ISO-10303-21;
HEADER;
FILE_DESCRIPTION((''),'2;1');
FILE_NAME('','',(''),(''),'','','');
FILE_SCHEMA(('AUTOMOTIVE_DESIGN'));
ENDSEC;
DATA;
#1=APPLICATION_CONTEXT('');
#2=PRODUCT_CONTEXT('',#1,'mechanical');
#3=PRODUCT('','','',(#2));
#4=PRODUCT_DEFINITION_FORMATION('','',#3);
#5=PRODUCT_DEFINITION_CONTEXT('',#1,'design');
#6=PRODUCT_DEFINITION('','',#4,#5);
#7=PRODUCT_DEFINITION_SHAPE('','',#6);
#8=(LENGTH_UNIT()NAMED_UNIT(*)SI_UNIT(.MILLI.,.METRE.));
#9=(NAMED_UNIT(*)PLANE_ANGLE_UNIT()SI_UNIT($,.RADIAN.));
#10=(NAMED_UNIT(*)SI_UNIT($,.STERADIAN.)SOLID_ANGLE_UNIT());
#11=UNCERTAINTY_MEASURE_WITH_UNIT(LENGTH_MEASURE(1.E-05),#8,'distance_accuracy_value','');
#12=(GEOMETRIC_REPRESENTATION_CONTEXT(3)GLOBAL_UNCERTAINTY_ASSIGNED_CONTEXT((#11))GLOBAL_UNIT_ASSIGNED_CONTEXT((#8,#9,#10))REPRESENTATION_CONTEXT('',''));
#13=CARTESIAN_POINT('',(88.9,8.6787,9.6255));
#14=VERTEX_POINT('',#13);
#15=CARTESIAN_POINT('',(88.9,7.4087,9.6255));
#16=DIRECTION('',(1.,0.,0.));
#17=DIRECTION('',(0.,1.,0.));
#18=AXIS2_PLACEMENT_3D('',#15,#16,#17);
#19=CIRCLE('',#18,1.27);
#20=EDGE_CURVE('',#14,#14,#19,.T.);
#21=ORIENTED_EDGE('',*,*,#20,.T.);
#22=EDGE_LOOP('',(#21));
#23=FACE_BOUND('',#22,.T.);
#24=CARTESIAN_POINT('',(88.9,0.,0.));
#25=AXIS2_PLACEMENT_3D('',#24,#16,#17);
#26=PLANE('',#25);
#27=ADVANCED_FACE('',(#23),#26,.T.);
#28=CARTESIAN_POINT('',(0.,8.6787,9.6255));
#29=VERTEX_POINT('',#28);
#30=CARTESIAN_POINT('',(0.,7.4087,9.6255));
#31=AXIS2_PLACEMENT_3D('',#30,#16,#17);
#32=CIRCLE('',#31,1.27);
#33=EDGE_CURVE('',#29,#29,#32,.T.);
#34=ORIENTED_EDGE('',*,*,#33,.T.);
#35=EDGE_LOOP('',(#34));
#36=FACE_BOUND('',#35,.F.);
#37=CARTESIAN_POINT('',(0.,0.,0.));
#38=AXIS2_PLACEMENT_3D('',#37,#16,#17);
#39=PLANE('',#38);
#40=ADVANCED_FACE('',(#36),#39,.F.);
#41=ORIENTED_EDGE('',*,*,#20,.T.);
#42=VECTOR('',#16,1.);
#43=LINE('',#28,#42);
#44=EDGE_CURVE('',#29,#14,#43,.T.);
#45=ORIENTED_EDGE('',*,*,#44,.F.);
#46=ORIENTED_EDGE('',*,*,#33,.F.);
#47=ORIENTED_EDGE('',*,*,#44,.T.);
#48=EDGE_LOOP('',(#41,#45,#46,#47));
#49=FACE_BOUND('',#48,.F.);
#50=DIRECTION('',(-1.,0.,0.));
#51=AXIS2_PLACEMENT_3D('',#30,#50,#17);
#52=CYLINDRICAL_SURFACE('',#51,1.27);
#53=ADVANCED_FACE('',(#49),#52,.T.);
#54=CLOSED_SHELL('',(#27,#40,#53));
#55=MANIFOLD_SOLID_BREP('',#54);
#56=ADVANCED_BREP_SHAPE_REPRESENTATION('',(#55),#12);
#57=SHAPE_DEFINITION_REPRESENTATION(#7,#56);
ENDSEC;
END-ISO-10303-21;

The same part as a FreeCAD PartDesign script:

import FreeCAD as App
import Part
import Sketcher
from FreeCAD import Vector
Q = App.Units.Quantity

doc = App.newDocument("Part")
body = doc.addObject("PartDesign::Body", "Body")

sketch1 = body.newObject("Sketcher::SketchObject", "Sketch")
sketch1.AttachmentSupport = (doc.getObject("YZ_Plane"), [""])
sketch1.MapMode = "FlatFace"
sketch1.addGeometry(Part.Circle(Vector(7.4, 9.6, 0), Vector(0, 0, 1), 1.3), False)
sketch1.addConstraint([
    Sketcher.Constraint("Diameter", 0, Q("0.1 in")),
    Sketcher.Constraint("DistanceX", -1, 1, 0, 3, Q("7.4087 mm")),
    Sketcher.Constraint("DistanceY", -1, 1, 0, 3, Q("9.6255 mm")),
])
pad1 = body.newObject("PartDesign::Pad", "Pad")
pad1.Profile = sketch1
pad1.Length = Q("3.5 in")

doc.recompute()
